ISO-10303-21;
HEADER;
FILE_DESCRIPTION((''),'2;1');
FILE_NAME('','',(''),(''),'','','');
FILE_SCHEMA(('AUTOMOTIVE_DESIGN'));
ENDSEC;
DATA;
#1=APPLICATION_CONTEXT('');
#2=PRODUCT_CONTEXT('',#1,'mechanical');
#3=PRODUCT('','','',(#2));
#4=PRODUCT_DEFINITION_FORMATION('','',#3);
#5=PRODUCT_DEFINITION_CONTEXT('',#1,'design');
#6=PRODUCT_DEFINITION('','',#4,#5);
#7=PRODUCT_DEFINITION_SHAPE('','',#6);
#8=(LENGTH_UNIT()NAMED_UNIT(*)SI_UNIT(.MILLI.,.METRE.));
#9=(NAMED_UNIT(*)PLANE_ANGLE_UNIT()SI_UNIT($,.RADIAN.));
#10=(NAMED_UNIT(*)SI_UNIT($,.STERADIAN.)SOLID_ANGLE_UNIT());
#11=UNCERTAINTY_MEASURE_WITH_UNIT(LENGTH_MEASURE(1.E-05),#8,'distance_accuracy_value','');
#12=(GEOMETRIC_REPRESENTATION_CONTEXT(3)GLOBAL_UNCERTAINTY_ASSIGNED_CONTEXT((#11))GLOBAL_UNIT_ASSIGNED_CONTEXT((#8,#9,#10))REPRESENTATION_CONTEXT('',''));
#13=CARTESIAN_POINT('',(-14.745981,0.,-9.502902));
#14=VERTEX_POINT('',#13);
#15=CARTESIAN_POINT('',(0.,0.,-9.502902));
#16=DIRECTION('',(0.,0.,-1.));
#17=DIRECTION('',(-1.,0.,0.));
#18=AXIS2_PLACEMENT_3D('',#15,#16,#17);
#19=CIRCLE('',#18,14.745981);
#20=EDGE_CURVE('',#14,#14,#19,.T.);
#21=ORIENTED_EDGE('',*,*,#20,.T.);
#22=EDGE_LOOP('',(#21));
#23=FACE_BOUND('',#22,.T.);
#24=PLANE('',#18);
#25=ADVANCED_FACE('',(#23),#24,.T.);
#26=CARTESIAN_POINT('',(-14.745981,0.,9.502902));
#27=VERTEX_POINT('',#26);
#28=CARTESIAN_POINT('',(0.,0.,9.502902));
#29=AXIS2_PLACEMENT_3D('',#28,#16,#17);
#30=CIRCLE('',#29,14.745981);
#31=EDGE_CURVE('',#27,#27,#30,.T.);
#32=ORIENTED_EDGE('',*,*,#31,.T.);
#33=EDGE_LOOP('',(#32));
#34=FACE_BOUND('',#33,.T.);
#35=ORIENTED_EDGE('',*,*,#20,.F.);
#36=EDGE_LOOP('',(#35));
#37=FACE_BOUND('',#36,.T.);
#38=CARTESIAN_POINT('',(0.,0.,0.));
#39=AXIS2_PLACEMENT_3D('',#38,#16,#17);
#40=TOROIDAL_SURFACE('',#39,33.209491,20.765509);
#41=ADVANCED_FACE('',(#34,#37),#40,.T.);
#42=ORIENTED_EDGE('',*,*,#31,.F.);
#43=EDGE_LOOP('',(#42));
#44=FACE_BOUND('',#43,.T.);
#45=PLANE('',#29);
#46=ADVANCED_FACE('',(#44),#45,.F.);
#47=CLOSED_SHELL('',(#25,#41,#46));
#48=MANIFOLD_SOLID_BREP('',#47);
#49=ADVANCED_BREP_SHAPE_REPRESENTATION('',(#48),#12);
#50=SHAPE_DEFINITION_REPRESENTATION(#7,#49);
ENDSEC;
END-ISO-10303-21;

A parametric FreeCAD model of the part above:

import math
import FreeCAD as App
import Part
import Sketcher

doc = App.newDocument("Part")
body = doc.addObject("PartDesign::Body", "Body")

sketch1 = body.newObject("Sketcher::SketchObject", "Sketch")
sketch1.AttachmentSupport = (doc.getObject("YZ_Plane"), [""])
sketch1.MapMode = "FlatFace"
sketch1.addGeometry(Part.ArcOfCircle(Part.Circle(App.Vector(33.209491, 0, 0), App.Vector(0, 0, 1), 20.765509), math.radians(-90), math.radians(152.765775)), False)
sketch1.addGeometry(Part.LineSegment(App.Vector(14.745981, 9.502902, 0), App.Vector(0, 9.502902, 0)), False)
sketch1.addGeometry(Part.LineSegment(App.Vector(0, 9.502902, 0), App.Vector(0, -9.502902, 0)), False)
sketch1.addGeometry(Part.LineSegment(App.Vector(0, -9.502902, 0), App.Vector(14.745981, -9.502902, 0)), False)
sketch1.addGeometry(Part.ArcOfCircle(Part.Circle(App.Vector(33.209491, 0, 0), App.Vector(0, 0, 1), 20.765509), math.radians(-152.765775), math.radians(-90)), False)
sketch1.addConstraint(Sketcher.Constraint("Coincident", 0, 2, 1, 1))
sketch1.addConstraint(Sketcher.Constraint("Coincident", 1, 2, 2, 1))
sketch1.addConstraint(Sketcher.Constraint("Coincident", 2, 2, 3, 1))
sketch1.addConstraint(Sketcher.Constraint("Coincident", 3, 2, 4, 1))
sketch1.addConstraint(Sketcher.Constraint("Tangent", 4, 2, 0, 1))
sketch1.addConstraint(Sketcher.Constraint("Horizontal", 1))
sketch1.addConstraint(Sketcher.Constraint("Vertical", 2))
sketch1.addConstraint(Sketcher.Constraint("Horizontal", 3))
sketch1.addConstraint(Sketcher.Constraint("Equal", 0, 4))
sketch1.addConstraint(Sketcher.Constraint("Symmetric", 1, 2, 2, 2, -1, 1))
sketch1.addConstraint(Sketcher.Constraint("PointOnObject", 0, 3, -1))
sketch1.addConstraint(Sketcher.Constraint("Vertical", 0, 3, 4, 2))
sketch1.addConstraint(Sketcher.Constraint("Radius", 0, 20.765509))
sketch1.addConstraint(Sketcher.Constraint("DistanceX", 1, 2, 1, 1, 14.745981))
sketch1.addConstraint(Sketcher.Constraint("DistanceY", -1, 1, 0, 2, 9.502902))
revolution = body.newObject("PartDesign::Revolution", "Revolution")
revolution.Profile = sketch1
revolution.ReferenceAxis = (sketch1, ["V_Axis"])
revolution.Angle = 360

doc.recompute()
